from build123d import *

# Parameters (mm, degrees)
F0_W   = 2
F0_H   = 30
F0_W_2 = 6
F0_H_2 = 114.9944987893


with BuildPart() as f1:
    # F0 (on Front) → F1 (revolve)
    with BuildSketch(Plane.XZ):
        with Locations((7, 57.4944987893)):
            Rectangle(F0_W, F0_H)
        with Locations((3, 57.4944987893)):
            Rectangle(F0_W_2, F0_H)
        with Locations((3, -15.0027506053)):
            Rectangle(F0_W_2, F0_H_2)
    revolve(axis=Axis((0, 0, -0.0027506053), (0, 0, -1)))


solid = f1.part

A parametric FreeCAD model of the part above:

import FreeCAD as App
import Part
import Sketcher

doc = App.newDocument("Part")
body = doc.addObject("PartDesign::Body", "Body")

# Sketch on XZ plane
sketch1 = body.newObject("Sketcher::SketchObject", "Sketch")
sketch1.AttachmentSupport = (doc.getObject("XZ_Plane"), [""])
sketch1.MapMode = "FlatFace"
sketch1.addGeometry([
    Part.LineSegment(App.Vector(8, 42.5, 0), App.Vector(8, 72.5, 0)),  # 0
    Part.LineSegment(App.Vector(8, 72.5, 0), App.Vector(0, 72.5, 0)),  # 1
    Part.LineSegment(App.Vector(0, 72.5, 0), App.Vector(0, -72.5, 0)),  # 2
    Part.LineSegment(App.Vector(0, -72.5, 0), App.Vector(6, -72.5, 0)),  # 3
    Part.LineSegment(App.Vector(6, -72.5, 0), App.Vector(6, 42.5, 0)),  # 4
    Part.LineSegment(App.Vector(6, 42.5, 0), App.Vector(8, 42.5, 0)),  # 5
], False)
sketch1.addConstraint([
    Sketcher.Constraint("Coincident", 0, 2, 1, 1),
    Sketcher.Constraint("Coincident", 1, 2, 2, 1),
    Sketcher.Constraint("Coincident", 2, 2, 3, 1),
    Sketcher.Constraint("Coincident", 3, 2, 4, 1),
    Sketcher.Constraint("Coincident", 4, 2, 5, 1),
    Sketcher.Constraint("Coincident", 5, 2, 0, 1),
    Sketcher.Constraint("Vertical", 0),
    Sketcher.Constraint("Horizontal", 1),
    Sketcher.Constraint("Vertical", 2),
    Sketcher.Constraint("Horizontal", 3),
    Sketcher.Constraint("Vertical", 4),
    Sketcher.Constraint("Horizontal", 5),
    Sketcher.Constraint("PointOnObject", 1, 2, -2),
    Sketcher.Constraint("DistanceX", 1, 2, 1, 1, 8.0),
    Sketcher.Constraint("DistanceX", 3, 1, 3, 2, 6.0),
    Sketcher.Constraint("DistanceY", 0, 1, 0, 2, 30.0),
    Sketcher.Constraint("DistanceY", 2, 2, -1, 1, 72.5),
    Sketcher.Constraint("DistanceY", 2, 2, 2, 1, 144.994499),
])
revolution = body.newObject("PartDesign::Revolution", "Revolution")
revolution.Profile = sketch1
revolution.ReferenceAxis = (sketch1, ["V_Axis"])
revolution.Angle = 360

doc.recompute()
